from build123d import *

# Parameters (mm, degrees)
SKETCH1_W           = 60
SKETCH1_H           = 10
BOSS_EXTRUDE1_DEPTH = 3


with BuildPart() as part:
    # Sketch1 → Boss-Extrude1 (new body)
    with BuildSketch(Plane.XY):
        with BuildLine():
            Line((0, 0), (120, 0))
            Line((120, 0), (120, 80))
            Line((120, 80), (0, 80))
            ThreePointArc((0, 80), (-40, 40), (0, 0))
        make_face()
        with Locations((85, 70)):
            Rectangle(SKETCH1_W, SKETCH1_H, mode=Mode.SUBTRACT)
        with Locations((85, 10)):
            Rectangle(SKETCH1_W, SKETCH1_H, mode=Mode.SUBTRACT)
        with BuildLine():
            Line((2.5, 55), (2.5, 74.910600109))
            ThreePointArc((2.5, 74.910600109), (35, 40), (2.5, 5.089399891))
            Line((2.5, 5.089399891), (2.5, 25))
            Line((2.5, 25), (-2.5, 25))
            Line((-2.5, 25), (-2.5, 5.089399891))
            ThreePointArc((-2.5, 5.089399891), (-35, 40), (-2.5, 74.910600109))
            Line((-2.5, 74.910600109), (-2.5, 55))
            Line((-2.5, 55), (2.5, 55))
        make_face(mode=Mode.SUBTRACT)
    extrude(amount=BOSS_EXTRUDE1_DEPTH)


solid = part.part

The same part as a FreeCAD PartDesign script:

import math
import FreeCAD as App
import Part
import Sketcher

doc = App.newDocument("Part")
body = doc.addObject("PartDesign::Body", "Body")

# Sketch on XY plane
sketch1 = body.newObject("Sketcher::SketchObject", "Sketch")
sketch1.AttachmentSupport = (doc.getObject("XY_Plane"), [""])
sketch1.MapMode = "FlatFace"
sketch1.addGeometry([
    Part.LineSegment(App.Vector(0, 0, 0), App.Vector(120, 0, 0)),  # 0
    Part.LineSegment(App.Vector(120, 0, 0), App.Vector(120, 80, 0)),  # 1
    Part.LineSegment(App.Vector(120, 80, 0), App.Vector(0, 80, 0)),  # 2
    Part.ArcOfCircle(Part.Circle(App.Vector(0, 40, 0), App.Vector(0, 0, 1), 40), math.radians(90), math.radians(270)),  # 3
    Part.LineSegment(App.Vector(115, 5, 0), App.Vector(55, 5, 0)),  # 4
    Part.LineSegment(App.Vector(55, 5, 0), App.Vector(55, 15, 0)),  # 5
    Part.LineSegment(App.Vector(55, 15, 0), App.Vector(115, 15, 0)),  # 6
    Part.LineSegment(App.Vector(115, 15, 0), App.Vector(115, 5, 0)),  # 7
    Part.LineSegment(App.Vector(-2, 55, 0), App.Vector(2, 55, 0)),  # 8
    Part.LineSegment(App.Vector(2, 55, 0), App.Vector(2, 75, 0)),  # 9
    Part.ArcOfCircle(Part.Circle(App.Vector(0, 40, 0), App.Vector(0, 0, 1), 35), math.radians(-86), math.radians(86)),  # 10
    Part.LineSegment(App.Vector(2, 5, 0), App.Vector(2, 25, 0)),  # 11
    Part.LineSegment(App.Vector(2, 25, 0), App.Vector(-2, 25, 0)),  # 12
    Part.LineSegment(App.Vector(-2, 25, 0), App.Vector(-2, 5, 0)),  # 13
    Part.ArcOfCircle(Part.Circle(App.Vector(0, 40, 0), App.Vector(0, 0, 1), 35), math.radians(94), math.radians(266)),  # 14
    Part.LineSegment(App.Vector(-2, 75, 0), App.Vector(-2, 55, 0)),  # 15
    Part.LineSegment(App.Vector(115, 65, 0), App.Vector(55, 65, 0)),  # 16
    Part.LineSegment(App.Vector(55, 65, 0), App.Vector(55, 75, 0)),  # 17
    Part.LineSegment(App.Vector(55, 75, 0), App.Vector(115, 75, 0)),  # 18
    Part.LineSegment(App.Vector(115, 75, 0), App.Vector(115, 65, 0)),  # 19
], False)
sketch1.addConstraint([
    Sketcher.Constraint("Coincident", 0, 2, 1, 1),
    Sketcher.Constraint("Coincident", 1, 2, 2, 1),
    Sketcher.Constraint("Tangent", 2, 2, 3, 1),
    Sketcher.Constraint("Tangent", 3, 2, 0, 1),
    Sketcher.Constraint("Coincident", 4, 2, 5, 1),
    Sketcher.Constraint("Coincident", 5, 2, 6, 1),
    Sketcher.Constraint("Coincident", 6, 2, 7, 1),
    Sketcher.Constraint("Coincident", 7, 2, 4, 1),
    Sketcher.Constraint("Coincident", 8, 2, 9, 1),
    Sketcher.Constraint("Coincident", 9, 2, 10, 2),
    Sketcher.Constraint("Coincident", 10, 1, 11, 1),
    Sketcher.Constraint("Coincident", 11, 2, 12, 1),
    Sketcher.Constraint("Coincident", 12, 2, 13, 1),
    Sketcher.Constraint("Coincident", 13, 2, 14, 2),
    Sketcher.Constraint("Coincident", 14, 1, 15, 1),
    Sketcher.Constraint("Coincident", 15, 2, 8, 1),
    Sketcher.Constraint("Coincident", 16, 2, 17, 1),
    Sketcher.Constraint("Coincident", 17, 2, 18, 1),
    Sketcher.Constraint("Coincident", 18, 2, 19, 1),
    Sketcher.Constraint("Coincident", 19, 2, 16, 1),
    Sketcher.Constraint("Horizontal", 0),
    Sketcher.Constraint("Vertical", 1),
    Sketcher.Constraint("Horizontal", 2),
    Sketcher.Constraint("Horizontal", 4),
    Sketcher.Constraint("Vertical", 5),
    Sketcher.Constraint("Horizontal", 6),
    Sketcher.Constraint("Vertical", 7),
    Sketcher.Constraint("Horizontal", 8),
    Sketcher.Constraint("Vertical", 9),
    Sketcher.Constraint("Vertical", 11),
    Sketcher.Constraint("Horizontal", 12),
    Sketcher.Constraint("Vertical", 13),
    Sketcher.Constraint("Vertical", 15),
    Sketcher.Constraint("Horizontal", 16),
    Sketcher.Constraint("Vertical", 17),
    Sketcher.Constraint("Horizontal", 18),
    Sketcher.Constraint("Vertical", 19),
    Sketcher.Constraint("Coincident", 3, 2, -1, 1),
    Sketcher.Constraint("Coincident", 10, 3, 3, 3),
    Sketcher.Constraint("Coincident", 14, 3, 3, 3),
    Sketcher.Constraint("Equal", 10, 14),
    Sketcher.Constraint("Horizontal", 10, 1, 13, 2),
    Sketcher.Constraint("Horizontal", 9, 2, 14, 1),
    Sketcher.Constraint("Vertical", 9, 2, 10, 1),
    Sketcher.Constraint("Vertical", 5, 2, 16, 2),
    Sketcher.Constraint("Vertical", 7, 2, 18, 2),
    Sketcher.Constraint("Equal", 9, 11),
    Sketcher.Constraint("Equal", 7, 17),
    Sketcher.Constraint("Radius", 3, 40.0),
    Sketcher.Constraint("Radius", 10, 35.0),
    Sketcher.Constraint("DistanceX", 0, 1, 0, 2, 120.0),
    Sketcher.Constraint("DistanceX", 4, 2, 4, 1, 60.0),
    Sketcher.Constraint("DistanceX", 8, 1, 8, 2, 5.0),
    Sketcher.Constraint("DistanceY", 5, 1, 5, 2, 10.0),
    Sketcher.Constraint("DistanceX", -1, 1, 4, 2, 55.0),
    Sketcher.Constraint("DistanceY", -1, 1, 4, 2, 5.0),
    Sketcher.Constraint("DistanceY", -1, 1, 8, 2, 55.0),
    Sketcher.Constraint("DistanceY", -1, 1, 16, 2, 65.0),
])
pad1 = body.newObject("PartDesign::Pad", "Pad")
pad1.Profile = sketch1
pad1.Length = 3

doc.recompute()
